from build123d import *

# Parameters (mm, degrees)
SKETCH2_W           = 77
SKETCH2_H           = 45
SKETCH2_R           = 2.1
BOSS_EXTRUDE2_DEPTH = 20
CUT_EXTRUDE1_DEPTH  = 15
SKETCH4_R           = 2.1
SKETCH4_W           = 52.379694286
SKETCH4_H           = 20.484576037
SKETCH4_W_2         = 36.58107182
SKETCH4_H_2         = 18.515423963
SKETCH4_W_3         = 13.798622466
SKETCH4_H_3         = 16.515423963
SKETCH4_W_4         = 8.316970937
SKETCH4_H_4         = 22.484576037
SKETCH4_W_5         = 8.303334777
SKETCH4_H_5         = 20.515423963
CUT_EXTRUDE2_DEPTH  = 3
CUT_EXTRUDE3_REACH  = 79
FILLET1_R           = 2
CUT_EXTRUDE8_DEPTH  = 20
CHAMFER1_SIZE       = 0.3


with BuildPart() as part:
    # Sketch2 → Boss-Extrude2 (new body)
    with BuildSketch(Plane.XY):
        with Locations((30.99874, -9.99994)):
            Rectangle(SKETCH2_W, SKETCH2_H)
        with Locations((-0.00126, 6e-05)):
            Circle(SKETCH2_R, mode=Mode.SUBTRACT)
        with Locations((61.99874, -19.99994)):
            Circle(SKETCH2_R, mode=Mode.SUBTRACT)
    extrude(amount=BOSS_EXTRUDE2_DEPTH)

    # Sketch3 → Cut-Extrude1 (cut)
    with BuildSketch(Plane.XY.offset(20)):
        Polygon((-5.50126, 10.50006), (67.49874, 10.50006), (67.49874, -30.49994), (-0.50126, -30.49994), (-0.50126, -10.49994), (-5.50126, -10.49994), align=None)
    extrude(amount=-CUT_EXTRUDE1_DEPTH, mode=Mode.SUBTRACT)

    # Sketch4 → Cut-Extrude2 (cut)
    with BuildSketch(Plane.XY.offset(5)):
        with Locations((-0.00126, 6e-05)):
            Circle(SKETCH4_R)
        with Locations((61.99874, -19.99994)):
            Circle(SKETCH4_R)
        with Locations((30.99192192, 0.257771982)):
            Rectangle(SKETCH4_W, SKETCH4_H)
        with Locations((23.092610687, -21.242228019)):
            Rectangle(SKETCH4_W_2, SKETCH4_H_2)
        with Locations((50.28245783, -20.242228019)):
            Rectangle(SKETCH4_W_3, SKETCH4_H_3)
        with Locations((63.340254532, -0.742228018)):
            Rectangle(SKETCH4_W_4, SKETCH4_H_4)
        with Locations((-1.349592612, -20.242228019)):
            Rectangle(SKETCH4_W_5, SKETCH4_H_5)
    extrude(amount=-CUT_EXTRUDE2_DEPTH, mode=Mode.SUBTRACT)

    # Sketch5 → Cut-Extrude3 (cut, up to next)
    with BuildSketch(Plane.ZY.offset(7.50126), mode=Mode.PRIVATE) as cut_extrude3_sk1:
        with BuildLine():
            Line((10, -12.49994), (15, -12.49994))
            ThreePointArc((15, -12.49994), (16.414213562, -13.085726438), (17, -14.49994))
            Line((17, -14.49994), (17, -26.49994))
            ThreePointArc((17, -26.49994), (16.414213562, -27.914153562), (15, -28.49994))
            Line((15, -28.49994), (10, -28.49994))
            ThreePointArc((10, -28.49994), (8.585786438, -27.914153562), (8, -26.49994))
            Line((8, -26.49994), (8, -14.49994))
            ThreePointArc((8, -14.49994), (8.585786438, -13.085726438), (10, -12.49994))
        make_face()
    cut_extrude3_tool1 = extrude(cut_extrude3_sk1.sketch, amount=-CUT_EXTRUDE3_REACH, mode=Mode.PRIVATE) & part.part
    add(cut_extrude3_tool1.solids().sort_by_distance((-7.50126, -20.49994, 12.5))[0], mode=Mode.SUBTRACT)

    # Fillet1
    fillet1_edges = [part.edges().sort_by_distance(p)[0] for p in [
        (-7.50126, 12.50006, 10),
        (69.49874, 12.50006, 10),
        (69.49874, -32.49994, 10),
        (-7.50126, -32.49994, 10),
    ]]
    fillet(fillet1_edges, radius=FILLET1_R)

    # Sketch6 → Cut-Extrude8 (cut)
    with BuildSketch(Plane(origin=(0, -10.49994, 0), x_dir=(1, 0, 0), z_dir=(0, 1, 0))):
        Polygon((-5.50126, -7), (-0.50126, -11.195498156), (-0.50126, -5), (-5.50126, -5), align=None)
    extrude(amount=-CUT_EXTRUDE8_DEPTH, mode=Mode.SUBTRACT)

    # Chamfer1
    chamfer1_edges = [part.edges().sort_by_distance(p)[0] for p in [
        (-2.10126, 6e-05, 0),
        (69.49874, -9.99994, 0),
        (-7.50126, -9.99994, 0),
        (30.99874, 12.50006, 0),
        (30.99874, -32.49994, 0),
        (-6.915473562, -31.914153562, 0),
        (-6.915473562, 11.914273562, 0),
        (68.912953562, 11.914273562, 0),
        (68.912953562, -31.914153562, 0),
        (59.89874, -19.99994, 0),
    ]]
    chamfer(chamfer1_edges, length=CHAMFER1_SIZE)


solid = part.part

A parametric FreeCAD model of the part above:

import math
import FreeCAD as App
import Part
import Sketcher

V = App.Vector
Q = App.Units.Quantity


def edges_at(feature, points):
    """Names of the edges that pass closest to the given points."""
    edges = feature.Shape.Edges
    near = lambda p: min(range(len(edges)), key=lambda i: edges[i].distToShape(Part.Vertex(*p))[0])
    return sorted({f"Edge{near(p) + 1}" for p in points})

doc = App.newDocument("Part")
params = doc.addObject("Spreadsheet::Sheet", "Params")
for row, (alias, value) in enumerate([
    ("sketch1_diameter", "4.2 mm"),
    ("sketch1_width", "77 mm"),
    ("sketch1_height", "45 mm"),
    ("pad1_length", "20 mm"),
    ("sketch2_width", "73 mm"),
    ("sketch2_width2", "5 mm"),
    ("sketch2_height", "21 mm"),
    ("sketch2_height2", "20 mm"),
    ("pocket1_length", "15 mm"),
    ("sketch3_diameter", "4.2 mm"),
    ("pocket2_length", "3 mm"),
    ("sketch4_radius", "2 mm"),
    ("sketch4_width", "12 mm"),
    ("sketch4_height", "5 mm"),
    ("fillet_radius", "2 mm"),
    ("sketch5_width", "5 mm"),
    ("sketch5_height", "2 mm"),
    ("pocket4_length", "20 mm"),
    ("chamfer_size", "0.3 mm"),
], start=1):
    params.set(f"A{row}", alias)
    params.set(f"B{row}", "=" + value)
    params.setAlias(f"B{row}", alias)

body = doc.addObject("PartDesign::Body", "Body")

# Sketch on XY plane
sketch1 = body.newObject("Sketcher::SketchObject", "Sketch")
sketch1.AttachmentSupport = (doc.getObject("XY_Plane"), [""])
sketch1.MapMode = "FlatFace"
sketch1.addGeometry([
    Part.LineSegment(V(-7.50126, 12.50006, 0), V(-7.50126, -32.49994, 0)),  # 0
    Part.LineSegment(V(-7.50126, -32.49994, 0), V(69.49874, -32.49994, 0)),  # 1
    Part.LineSegment(V(69.49874, -32.49994, 0), V(69.49874, 12.50006, 0)),  # 2
    Part.LineSegment(V(69.49874, 12.50006, 0), V(-7.50126, 12.50006, 0)),  # 3
    Part.Circle(V(61.99874, -19.99994, 0), V(0, 0, 1), 2.1),  # 4
    Part.Circle(V(-0.00126, 0.00006, 0), V(0, 0, 1), 2.1),  # 5
], False)
sketch1.addConstraint([
    Sketcher.Constraint("Coincident", 0, 2, 1, 1),
    Sketcher.Constraint("Coincident", 1, 2, 2, 1),
    Sketcher.Constraint("Coincident", 2, 2, 3, 1),
    Sketcher.Constraint("Coincident", 3, 2, 0, 1),
    Sketcher.Constraint("Vertical", 0),
    Sketcher.Constraint("Horizontal", 1),
    Sketcher.Constraint("Vertical", 2),
    Sketcher.Constraint("Horizontal", 3),
    Sketcher.Constraint("Equal", 4, 5),
    Sketcher.Constraint("Diameter", 4, Q("4.2 mm")),
    Sketcher.Constraint("DistanceX", 1, 1, 1, 2, Q("77 mm")),
    Sketcher.Constraint("DistanceY", 0, 2, 0, 1, Q("45 mm")),
    Sketcher.Constraint("DistanceX", 5, 3, 4, 3, Q("62 mm")),
    Sketcher.Constraint("DistanceY", 4, 3, 5, 3, Q("20 mm")),
    Sketcher.Constraint("DistanceX", 0, 2, 5, 3, Q("7.5 mm")),
    Sketcher.Constraint("DistanceY", 0, 2, 5, 3, Q("32.5 mm")),
    Sketcher.Constraint("DistanceX", -1, 1, 4, 3, Q("61.99874 mm")),
    Sketcher.Constraint("DistanceY", 4, 3, -1, 1, Q("19.99994 mm")),
])
sketch1.setExpression("Constraints[9]", "Params.sketch1_diameter")
sketch1.setExpression("Constraints[10]", "Params.sketch1_width")
sketch1.setExpression("Constraints[11]", "Params.sketch1_height")
pad1 = body.newObject("PartDesign::Pad", "Pad")
pad1.Profile = sketch1
pad1.setExpression("Length", "Params.pad1_length")

# Sketch on XY plane
sketch2 = body.newObject("Sketcher::SketchObject", "Sketch001")
sketch2.AttachmentSupport = (doc.getObject("XY_Plane"), [""])
sketch2.MapMode = "FlatFace"
sketch2.AttachmentOffset = App.Placement(V(0, 0, 20), App.Rotation())
sketch2.addGeometry([
    Part.LineSegment(V(67.49874, 10.50006, 0), V(-5.50126, 10.50006, 0)),  # 0
    Part.LineSegment(V(-5.50126, 10.50006, 0), V(-5.50126, -10.49994, 0)),  # 1
    Part.LineSegment(V(-5.50126, -10.49994, 0), V(-0.50126, -10.49994, 0)),  # 2
    Part.LineSegment(V(-0.50126, -10.49994, 0), V(-0.50126, -30.49994, 0)),  # 3
    Part.LineSegment(V(-0.50126, -30.49994, 0), V(67.49874, -30.49994, 0)),  # 4
    Part.LineSegment(V(67.49874, -30.49994, 0), V(67.49874, 10.50006, 0)),  # 5
], False)
sketch2.addConstraint([
    Sketcher.Constraint("Coincident", 0, 2, 1, 1),
    Sketcher.Constraint("Coincident", 1, 2, 2, 1),
    Sketcher.Constraint("Coincident", 2, 2, 3, 1),
    Sketcher.Constraint("Coincident", 3, 2, 4, 1),
    Sketcher.Constraint("Coincident", 4, 2, 5, 1),
    Sketcher.Constraint("Coincident", 5, 2, 0, 1),
    Sketcher.Constraint("Horizontal", 0),
    Sketcher.Constraint("Vertical", 1),
    Sketcher.Constraint("Horizontal", 2),
    Sketcher.Constraint("Vertical", 3),
    Sketcher.Constraint("Horizontal", 4),
    Sketcher.Constraint("Vertical", 5),
    Sketcher.Constraint("DistanceX", 0, 2, 0, 1, Q("73 mm")),
    Sketcher.Constraint("DistanceX", 2, 1, 2, 2, Q("5 mm")),
    Sketcher.Constraint("DistanceY", 1, 2, 1, 1, Q("21 mm")),
    Sketcher.Constraint("DistanceY", 3, 2, 3, 1, Q("20 mm")),
    Sketcher.Constraint("DistanceX", 0, 2, -1, 1, Q("5.50126 mm")),
    Sketcher.Constraint("DistanceY", -1, 1, 0, 2, Q("10.50006 mm")),
])
sketch2.setExpression("Constraints[12]", "Params.sketch2_width")
sketch2.setExpression("Constraints[13]", "Params.sketch2_width2")
sketch2.setExpression("Constraints[14]", "Params.sketch2_height")
sketch2.setExpression("Constraints[15]", "Params.sketch2_height2")
pocket1 = body.newObject("PartDesign::Pocket", "Pocket")
pocket1.Profile = sketch2
pocket1.setExpression("Length", "Params.pocket1_length")

# Sketch on XY plane
sketch3 = body.newObject("Sketcher::SketchObject", "Sketch002")
sketch3.AttachmentSupport = (doc.getObject("XY_Plane"), [""])
sketch3.MapMode = "FlatFace"
sketch3.AttachmentOffset = App.Placement(V(0, 0, 5), App.Rotation())
sketch3.addGeometry([
    Part.Circle(V(-0.00126, 0.00006, 0), V(0, 0, 1), 2.1),  # 0
    Part.Circle(V(61.99874, -19.99994, 0), V(0, 0, 1), 2.1),  # 1
    Part.LineSegment(V(4.802075, 10.50006, 0), V(4.802075, -9.984516, 0)),  # 2
    Part.LineSegment(V(4.802075, -9.984516, 0), V(57.181769, -9.984516, 0)),  # 3
    Part.LineSegment(V(57.181769, -9.984516, 0), V(57.181769, 10.50006, 0)),  # 4
    Part.LineSegment(V(57.181769, 10.50006, 0), V(4.802075, 10.50006, 0)),  # 5
    Part.LineSegment(V(4.802075, -11.984516, 0), V(4.802075, -30.49994, 0)),  # 6
    Part.LineSegment(V(4.802075, -30.49994, 0), V(41.383147, -30.49994, 0)),  # 7
    Part.LineSegment(V(41.383147, -30.49994, 0), V(41.383147, -11.984516, 0)),  # 8
    Part.LineSegment(V(41.383147, -11.984516, 0), V(4.802075, -11.984516, 0)),  # 9
    Part.LineSegment(V(43.383147, -11.984516, 0), V(43.383147, -28.49994, 0)),  # 10
    Part.LineSegment(V(43.383147, -28.49994, 0), V(57.181769, -28.49994, 0)),  # 11
    Part.LineSegment(V(57.181769, -28.49994, 0), V(57.181769, -11.984516, 0)),  # 12
    Part.LineSegment(V(57.181769, -11.984516, 0), V(43.383147, -11.984516, 0)),  # 13
    Part.LineSegment(V(59.181769, 10.50006, 0), V(59.181769, -11.984516, 0)),  # 14
    Part.LineSegment(V(59.181769, -11.984516, 0), V(67.49874, -11.984516, 0)),  # 15
    Part.LineSegment(V(67.49874, -11.984516, 0), V(67.49874, 10.50006, 0)),  # 16
    Part.LineSegment(V(67.49874, 10.50006, 0), V(59.181769, 10.50006, 0)),  # 17
    Part.LineSegment(V(-5.50126, -9.984516, 0), V(-5.50126, -30.49994, 0)),  # 18
    Part.LineSegment(V(-5.50126, -30.49994, 0), V(2.802075, -30.49994, 0)),  # 19
    Part.LineSegment(V(2.802075, -30.49994, 0), V(2.802075, -9.984516, 0)),  # 20
    Part.LineSegment(V(2.802075, -9.984516, 0), V(-5.50126, -9.984516, 0)),  # 21
], False)
sketch3.addConstraint([
    Sketcher.Constraint("Coincident", 2, 2, 3, 1),
    Sketcher.Constraint("Coincident", 3, 2, 4, 1),
    Sketcher.Constraint("Coincident", 4, 2, 5, 1),
    Sketcher.Constraint("Coincident", 5, 2, 2, 1),
    Sketcher.Constraint("Coincident", 6, 2, 7, 1),
    Sketcher.Constraint("Coincident", 7, 2, 8, 1),
    Sketcher.Constraint("Coincident", 8, 2, 9, 1),
    Sketcher.Constraint("Coincident", 9, 2, 6, 1),
    Sketcher.Constraint("Coincident", 10, 2, 11, 1),
    Sketcher.Constraint("Coincident", 11, 2, 12, 1),
    Sketcher.Constraint("Coincident", 12, 2, 13, 1),
    Sketcher.Constraint("Coincident", 13, 2, 10, 1),
    Sketcher.Constraint("Coincident", 14, 2, 15, 1),
    Sketcher.Constraint("Coincident", 15, 2, 16, 1),
    Sketcher.Constraint("Coincident", 16, 2, 17, 1),
    Sketcher.Constraint("Coincident", 17, 2, 14, 1),
    Sketcher.Constraint("Coincident", 18, 2, 19, 1),
    Sketcher.Constraint("Coincident", 19, 2, 20, 1),
    Sketcher.Constraint("Coincident", 20, 2, 21, 1),
    Sketcher.Constraint("Coincident", 21, 2, 18, 1),
    Sketcher.Constraint("Vertical", 2),
    Sketcher.Constraint("Horizontal", 3),
    Sketcher.Constraint("Vertical", 4),
    Sketcher.Constraint("Horizontal", 5),
    Sketcher.Constraint("Vertical", 6),
    Sketcher.Constraint("Horizontal", 7),
    Sketcher.Constraint("Vertical", 8),
    Sketcher.Constraint("Horizontal", 9),
    Sketcher.Constraint("Vertical", 10),
    Sketcher.Constraint("Horizontal", 11),
    Sketcher.Constraint("Vertical", 12),
    Sketcher.Constraint("Horizontal", 13),
    Sketcher.Constraint("Vertical", 14),
    Sketcher.Constraint("Horizontal", 15),
    Sketcher.Constraint("Vertical", 16),
    Sketcher.Constraint("Horizontal", 17),
    Sketcher.Constraint("Vertical", 18),
    Sketcher.Constraint("Horizontal", 19),
    Sketcher.Constraint("Vertical", 20),
    Sketcher.Constraint("Horizontal", 21),
    Sketcher.Constraint("Equal", 0, 1),
    Sketcher.Constraint("Horizontal", 9, 2, 12, 2),
    Sketcher.Constraint("Horizontal", 13, 2, 14, 2),
    Sketcher.Constraint("Horizontal", 5, 2, 16, 2),
    Sketcher.Constraint("Horizontal", 7, 2, 18, 2),
    Sketcher.Constraint("Horizontal", 3, 2, 20, 2),
    Sketcher.Constraint("Vertical", 5, 2, 6, 2),
    Sketcher.Constraint("Vertical", 4, 2, 11, 2),
    Sketcher.Constraint("Diameter", 0, Q("4.2 mm")),
    Sketcher.Constraint("DistanceX", 0, 3, 1, 3, Q("62 mm")),
    Sketcher.Constraint("DistanceY", 1, 3, 0, 3, Q("20 mm")),
    Sketcher.Constraint("DistanceY", 6, 2, 5, 2, Q("41 mm")),
    Sketcher.Constraint("DistanceY", 8, 2, 3, 2, Q("2 mm")),
    Sketcher.Constraint("DistanceX", 7, 2, 10, 2, Q("2 mm")),
    Sketcher.Constraint("DistanceY", 7, 2, 10, 2, Q("2 mm")),
    Sketcher.Constraint("DistanceX", 12, 2, 14, 2, Q("2 mm")),
    Sketcher.Constraint("DistanceX", 19, 2, 6, 2, Q("2 mm")),
    Sketcher.Constraint("DistanceY", 1, 3, 4, 2, Q("30.5 mm")),
    Sketcher.Constraint("DistanceX", 1, 3, 15, 2, Q("5.5 mm")),
    Sketcher.Constraint("DistanceX", 18, 2, 0, 3, Q("5.5 mm")),
    Sketcher.Constraint("DistanceX", 7, 1, 7, 2, Q("36.581072 mm")),
    Sketcher.Constraint("DistanceX", 15, 1, 15, 2, Q("8.316971 mm")),
    Sketcher.Constraint("DistanceX", 3, 1, 3, 2, Q("52.379694 mm")),
    Sketcher.Constraint("DistanceY", 2, 2, 2, 1, Q("20.484576 mm")),
    Sketcher.Constraint("DistanceX", 0, 3, -1, 1, Q("0.00126 mm")),
    Sketcher.Constraint("DistanceY", 1, 3, -1, 1, Q("19.99994 mm")),
])
sketch3.setExpression("Constraints[48]", "Params.sketch3_diameter")
pocket2 = body.newObject("PartDesign::Pocket", "Pocket001")
pocket2.Profile = sketch3
pocket2.setExpression("Length", "Params.pocket2_length")

# Sketch on YZ plane
sketch4 = body.newObject("Sketcher::SketchObject", "Sketch003")
sketch4.AttachmentSupport = (doc.getObject("YZ_Plane"), [""])
sketch4.MapMode = "FlatFace"
sketch4.AttachmentOffset = App.Placement(V(0, 0, -7.50126), App.Rotation())
sketch4.addGeometry([
    Part.LineSegment(V(-12.49994, 15, 0), V(-12.49994, 10, 0)),  # 0
    Part.ArcOfCircle(Part.Circle(V(-14.49994, 10, 0), V(0, 0, 1), 2), math.radians(-90), math.radians(0)),  # 1
    Part.LineSegment(V(-14.49994, 8, 0), V(-26.49994, 8, 0)),  # 2
    Part.ArcOfCircle(Part.Circle(V(-26.49994, 10, 0), V(0, 0, 1), 2), math.radians(-180), math.radians(-90)),  # 3
    Part.LineSegment(V(-28.49994, 10, 0), V(-28.49994, 15, 0)),  # 4
    Part.ArcOfCircle(Part.Circle(V(-26.49994, 15, 0), V(0, 0, 1), 2), math.radians(90), math.radians(180)),  # 5
    Part.LineSegment(V(-26.49994, 17, 0), V(-14.49994, 17, 0)),  # 6
    Part.ArcOfCircle(Part.Circle(V(-14.49994, 15, 0), V(0, 0, 1), 2), math.radians(0), math.radians(90)),  # 7
], False)
sketch4.addConstraint([
    Sketcher.Constraint("Tangent", 0, 2, 1, 2),
    Sketcher.Constraint("Tangent", 1, 1, 2, 1),
    Sketcher.Constraint("Tangent", 2, 2, 3, 2),
    Sketcher.Constraint("Tangent", 3, 1, 4, 1),
    Sketcher.Constraint("Tangent", 4, 2, 5, 2),
    Sketcher.Constraint("Tangent", 5, 1, 6, 1),
    Sketcher.Constraint("Tangent", 6, 2, 7, 2),
    Sketcher.Constraint("Tangent", 7, 1, 0, 1),
    Sketcher.Constraint("Vertical", 0),
    Sketcher.Constraint("Horizontal", 2),
    Sketcher.Constraint("Vertical", 4),
    Sketcher.Constraint("Horizontal", 6),
    Sketcher.Constraint("Equal", 1, 3),
    Sketcher.Constraint("Equal", 3, 5),
    Sketcher.Constraint("Equal", 5, 7),
    Sketcher.Constraint("Radius", 1, Q("2 mm")),
    Sketcher.Constraint("DistanceX", 2, 2, 2, 1, Q("12 mm")),
    Sketcher.Constraint("DistanceY", 0, 2, 0, 1, Q("5 mm")),
    Sketcher.Constraint("DistanceY", -1, 1, 1, 3, Q("10 mm")),
    Sketcher.Constraint("DistanceX", 1, 3, -1, 1, Q("14.49994 mm")),
])
sketch4.setExpression("Constraints[15]", "Params.sketch4_radius")
sketch4.setExpression("Constraints[16]", "Params.sketch4_width")
sketch4.setExpression("Constraints[17]", "Params.sketch4_height")
pocket3 = body.newObject("PartDesign::Pocket", "Pocket002")
pocket3.Profile = sketch4
pocket3.Type = "UpToFirst"
pocket3.Reversed = True
doc.recompute()

fillet = body.newObject("PartDesign::Fillet", "Fillet")
fillet.Base = (pocket3, edges_at(pocket3, [
    (-7.501, 12.5, 10),
    (69.499, 12.5, 10),
    (69.499, -32.5, 10),
    (-7.501, -32.5, 10),
]))
fillet.setExpression("Radius", "Params.fillet_radius")

# Sketch on XZ plane
sketch5 = body.newObject("Sketcher::SketchObject", "Sketch004")
sketch5.AttachmentSupport = (doc.getObject("XZ_Plane"), [""])
sketch5.MapMode = "FlatFace"
sketch5.AttachmentOffset = App.Placement(V(0, 0, 10.49994), App.Rotation())
sketch5.addGeometry([
    Part.LineSegment(V(-5.50126, 7, 0), V(-0.50126, 11.195498, 0)),
    Part.LineSegment(V(-0.50126, 11.195498, 0), V(-0.50126, 5, 0)),
    Part.LineSegment(V(-0.50126, 5, 0), V(-5.50126, 5, 0)),
    Part.LineSegment(V(-5.50126, 5, 0), V(-5.50126, 7, 0)),
], False)
sketch5.addConstraint([
    Sketcher.Constraint("Coincident", 0, 2, 1, 1),
    Sketcher.Constraint("Coincident", 1, 2, 2, 1),
    Sketcher.Constraint("Coincident", 2, 2, 3, 1),
    Sketcher.Constraint("Coincident", 3, 2, 0, 1),
    Sketcher.Constraint("Vertical", 1),
    Sketcher.Constraint("Horizontal", 2),
    Sketcher.Constraint("Vertical", 3),
    Sketcher.Constraint("DistanceX", 2, 2, 2, 1, Q("5 mm")),
    Sketcher.Constraint("DistanceY", 3, 1, 3, 2, Q("2 mm")),
    Sketcher.Constraint("Angle", 0, Q("40 deg")),
    Sketcher.Constraint("DistanceY", -1, 1, 1, 2, Q("5 mm")),
    Sketcher.Constraint("DistanceX", 0, 2, -1, 1, Q("0.50126 mm")),
])
sketch5.setExpression("Constraints[7]", "Params.sketch5_width")
sketch5.setExpression("Constraints[8]", "Params.sketch5_height")
pocket4 = body.newObject("PartDesign::Pocket", "Pocket003")
pocket4.Profile = sketch5
pocket4.setExpression("Length", "Params.pocket4_length")
pocket4.Reversed = True
doc.recompute()

chamfer = body.newObject("PartDesign::Chamfer", "Chamfer")
chamfer.Base = (pocket4, edges_at(pocket4, [
    (-2.101, 0, 0),
    (69.499, -10, 0),
    (-7.501, -10, 0),
    (30.999, 12.5, 0),
    (30.999, -32.5, 0),
    (-6.915, -31.914, 0),
    (-6.915, 11.914, 0),
    (68.913, 11.914, 0),
    (68.913, -31.914, 0),
    (59.899, -20, 0),
]))
chamfer.setExpression("Size", "Params.chamfer_size")

doc.recompute()
